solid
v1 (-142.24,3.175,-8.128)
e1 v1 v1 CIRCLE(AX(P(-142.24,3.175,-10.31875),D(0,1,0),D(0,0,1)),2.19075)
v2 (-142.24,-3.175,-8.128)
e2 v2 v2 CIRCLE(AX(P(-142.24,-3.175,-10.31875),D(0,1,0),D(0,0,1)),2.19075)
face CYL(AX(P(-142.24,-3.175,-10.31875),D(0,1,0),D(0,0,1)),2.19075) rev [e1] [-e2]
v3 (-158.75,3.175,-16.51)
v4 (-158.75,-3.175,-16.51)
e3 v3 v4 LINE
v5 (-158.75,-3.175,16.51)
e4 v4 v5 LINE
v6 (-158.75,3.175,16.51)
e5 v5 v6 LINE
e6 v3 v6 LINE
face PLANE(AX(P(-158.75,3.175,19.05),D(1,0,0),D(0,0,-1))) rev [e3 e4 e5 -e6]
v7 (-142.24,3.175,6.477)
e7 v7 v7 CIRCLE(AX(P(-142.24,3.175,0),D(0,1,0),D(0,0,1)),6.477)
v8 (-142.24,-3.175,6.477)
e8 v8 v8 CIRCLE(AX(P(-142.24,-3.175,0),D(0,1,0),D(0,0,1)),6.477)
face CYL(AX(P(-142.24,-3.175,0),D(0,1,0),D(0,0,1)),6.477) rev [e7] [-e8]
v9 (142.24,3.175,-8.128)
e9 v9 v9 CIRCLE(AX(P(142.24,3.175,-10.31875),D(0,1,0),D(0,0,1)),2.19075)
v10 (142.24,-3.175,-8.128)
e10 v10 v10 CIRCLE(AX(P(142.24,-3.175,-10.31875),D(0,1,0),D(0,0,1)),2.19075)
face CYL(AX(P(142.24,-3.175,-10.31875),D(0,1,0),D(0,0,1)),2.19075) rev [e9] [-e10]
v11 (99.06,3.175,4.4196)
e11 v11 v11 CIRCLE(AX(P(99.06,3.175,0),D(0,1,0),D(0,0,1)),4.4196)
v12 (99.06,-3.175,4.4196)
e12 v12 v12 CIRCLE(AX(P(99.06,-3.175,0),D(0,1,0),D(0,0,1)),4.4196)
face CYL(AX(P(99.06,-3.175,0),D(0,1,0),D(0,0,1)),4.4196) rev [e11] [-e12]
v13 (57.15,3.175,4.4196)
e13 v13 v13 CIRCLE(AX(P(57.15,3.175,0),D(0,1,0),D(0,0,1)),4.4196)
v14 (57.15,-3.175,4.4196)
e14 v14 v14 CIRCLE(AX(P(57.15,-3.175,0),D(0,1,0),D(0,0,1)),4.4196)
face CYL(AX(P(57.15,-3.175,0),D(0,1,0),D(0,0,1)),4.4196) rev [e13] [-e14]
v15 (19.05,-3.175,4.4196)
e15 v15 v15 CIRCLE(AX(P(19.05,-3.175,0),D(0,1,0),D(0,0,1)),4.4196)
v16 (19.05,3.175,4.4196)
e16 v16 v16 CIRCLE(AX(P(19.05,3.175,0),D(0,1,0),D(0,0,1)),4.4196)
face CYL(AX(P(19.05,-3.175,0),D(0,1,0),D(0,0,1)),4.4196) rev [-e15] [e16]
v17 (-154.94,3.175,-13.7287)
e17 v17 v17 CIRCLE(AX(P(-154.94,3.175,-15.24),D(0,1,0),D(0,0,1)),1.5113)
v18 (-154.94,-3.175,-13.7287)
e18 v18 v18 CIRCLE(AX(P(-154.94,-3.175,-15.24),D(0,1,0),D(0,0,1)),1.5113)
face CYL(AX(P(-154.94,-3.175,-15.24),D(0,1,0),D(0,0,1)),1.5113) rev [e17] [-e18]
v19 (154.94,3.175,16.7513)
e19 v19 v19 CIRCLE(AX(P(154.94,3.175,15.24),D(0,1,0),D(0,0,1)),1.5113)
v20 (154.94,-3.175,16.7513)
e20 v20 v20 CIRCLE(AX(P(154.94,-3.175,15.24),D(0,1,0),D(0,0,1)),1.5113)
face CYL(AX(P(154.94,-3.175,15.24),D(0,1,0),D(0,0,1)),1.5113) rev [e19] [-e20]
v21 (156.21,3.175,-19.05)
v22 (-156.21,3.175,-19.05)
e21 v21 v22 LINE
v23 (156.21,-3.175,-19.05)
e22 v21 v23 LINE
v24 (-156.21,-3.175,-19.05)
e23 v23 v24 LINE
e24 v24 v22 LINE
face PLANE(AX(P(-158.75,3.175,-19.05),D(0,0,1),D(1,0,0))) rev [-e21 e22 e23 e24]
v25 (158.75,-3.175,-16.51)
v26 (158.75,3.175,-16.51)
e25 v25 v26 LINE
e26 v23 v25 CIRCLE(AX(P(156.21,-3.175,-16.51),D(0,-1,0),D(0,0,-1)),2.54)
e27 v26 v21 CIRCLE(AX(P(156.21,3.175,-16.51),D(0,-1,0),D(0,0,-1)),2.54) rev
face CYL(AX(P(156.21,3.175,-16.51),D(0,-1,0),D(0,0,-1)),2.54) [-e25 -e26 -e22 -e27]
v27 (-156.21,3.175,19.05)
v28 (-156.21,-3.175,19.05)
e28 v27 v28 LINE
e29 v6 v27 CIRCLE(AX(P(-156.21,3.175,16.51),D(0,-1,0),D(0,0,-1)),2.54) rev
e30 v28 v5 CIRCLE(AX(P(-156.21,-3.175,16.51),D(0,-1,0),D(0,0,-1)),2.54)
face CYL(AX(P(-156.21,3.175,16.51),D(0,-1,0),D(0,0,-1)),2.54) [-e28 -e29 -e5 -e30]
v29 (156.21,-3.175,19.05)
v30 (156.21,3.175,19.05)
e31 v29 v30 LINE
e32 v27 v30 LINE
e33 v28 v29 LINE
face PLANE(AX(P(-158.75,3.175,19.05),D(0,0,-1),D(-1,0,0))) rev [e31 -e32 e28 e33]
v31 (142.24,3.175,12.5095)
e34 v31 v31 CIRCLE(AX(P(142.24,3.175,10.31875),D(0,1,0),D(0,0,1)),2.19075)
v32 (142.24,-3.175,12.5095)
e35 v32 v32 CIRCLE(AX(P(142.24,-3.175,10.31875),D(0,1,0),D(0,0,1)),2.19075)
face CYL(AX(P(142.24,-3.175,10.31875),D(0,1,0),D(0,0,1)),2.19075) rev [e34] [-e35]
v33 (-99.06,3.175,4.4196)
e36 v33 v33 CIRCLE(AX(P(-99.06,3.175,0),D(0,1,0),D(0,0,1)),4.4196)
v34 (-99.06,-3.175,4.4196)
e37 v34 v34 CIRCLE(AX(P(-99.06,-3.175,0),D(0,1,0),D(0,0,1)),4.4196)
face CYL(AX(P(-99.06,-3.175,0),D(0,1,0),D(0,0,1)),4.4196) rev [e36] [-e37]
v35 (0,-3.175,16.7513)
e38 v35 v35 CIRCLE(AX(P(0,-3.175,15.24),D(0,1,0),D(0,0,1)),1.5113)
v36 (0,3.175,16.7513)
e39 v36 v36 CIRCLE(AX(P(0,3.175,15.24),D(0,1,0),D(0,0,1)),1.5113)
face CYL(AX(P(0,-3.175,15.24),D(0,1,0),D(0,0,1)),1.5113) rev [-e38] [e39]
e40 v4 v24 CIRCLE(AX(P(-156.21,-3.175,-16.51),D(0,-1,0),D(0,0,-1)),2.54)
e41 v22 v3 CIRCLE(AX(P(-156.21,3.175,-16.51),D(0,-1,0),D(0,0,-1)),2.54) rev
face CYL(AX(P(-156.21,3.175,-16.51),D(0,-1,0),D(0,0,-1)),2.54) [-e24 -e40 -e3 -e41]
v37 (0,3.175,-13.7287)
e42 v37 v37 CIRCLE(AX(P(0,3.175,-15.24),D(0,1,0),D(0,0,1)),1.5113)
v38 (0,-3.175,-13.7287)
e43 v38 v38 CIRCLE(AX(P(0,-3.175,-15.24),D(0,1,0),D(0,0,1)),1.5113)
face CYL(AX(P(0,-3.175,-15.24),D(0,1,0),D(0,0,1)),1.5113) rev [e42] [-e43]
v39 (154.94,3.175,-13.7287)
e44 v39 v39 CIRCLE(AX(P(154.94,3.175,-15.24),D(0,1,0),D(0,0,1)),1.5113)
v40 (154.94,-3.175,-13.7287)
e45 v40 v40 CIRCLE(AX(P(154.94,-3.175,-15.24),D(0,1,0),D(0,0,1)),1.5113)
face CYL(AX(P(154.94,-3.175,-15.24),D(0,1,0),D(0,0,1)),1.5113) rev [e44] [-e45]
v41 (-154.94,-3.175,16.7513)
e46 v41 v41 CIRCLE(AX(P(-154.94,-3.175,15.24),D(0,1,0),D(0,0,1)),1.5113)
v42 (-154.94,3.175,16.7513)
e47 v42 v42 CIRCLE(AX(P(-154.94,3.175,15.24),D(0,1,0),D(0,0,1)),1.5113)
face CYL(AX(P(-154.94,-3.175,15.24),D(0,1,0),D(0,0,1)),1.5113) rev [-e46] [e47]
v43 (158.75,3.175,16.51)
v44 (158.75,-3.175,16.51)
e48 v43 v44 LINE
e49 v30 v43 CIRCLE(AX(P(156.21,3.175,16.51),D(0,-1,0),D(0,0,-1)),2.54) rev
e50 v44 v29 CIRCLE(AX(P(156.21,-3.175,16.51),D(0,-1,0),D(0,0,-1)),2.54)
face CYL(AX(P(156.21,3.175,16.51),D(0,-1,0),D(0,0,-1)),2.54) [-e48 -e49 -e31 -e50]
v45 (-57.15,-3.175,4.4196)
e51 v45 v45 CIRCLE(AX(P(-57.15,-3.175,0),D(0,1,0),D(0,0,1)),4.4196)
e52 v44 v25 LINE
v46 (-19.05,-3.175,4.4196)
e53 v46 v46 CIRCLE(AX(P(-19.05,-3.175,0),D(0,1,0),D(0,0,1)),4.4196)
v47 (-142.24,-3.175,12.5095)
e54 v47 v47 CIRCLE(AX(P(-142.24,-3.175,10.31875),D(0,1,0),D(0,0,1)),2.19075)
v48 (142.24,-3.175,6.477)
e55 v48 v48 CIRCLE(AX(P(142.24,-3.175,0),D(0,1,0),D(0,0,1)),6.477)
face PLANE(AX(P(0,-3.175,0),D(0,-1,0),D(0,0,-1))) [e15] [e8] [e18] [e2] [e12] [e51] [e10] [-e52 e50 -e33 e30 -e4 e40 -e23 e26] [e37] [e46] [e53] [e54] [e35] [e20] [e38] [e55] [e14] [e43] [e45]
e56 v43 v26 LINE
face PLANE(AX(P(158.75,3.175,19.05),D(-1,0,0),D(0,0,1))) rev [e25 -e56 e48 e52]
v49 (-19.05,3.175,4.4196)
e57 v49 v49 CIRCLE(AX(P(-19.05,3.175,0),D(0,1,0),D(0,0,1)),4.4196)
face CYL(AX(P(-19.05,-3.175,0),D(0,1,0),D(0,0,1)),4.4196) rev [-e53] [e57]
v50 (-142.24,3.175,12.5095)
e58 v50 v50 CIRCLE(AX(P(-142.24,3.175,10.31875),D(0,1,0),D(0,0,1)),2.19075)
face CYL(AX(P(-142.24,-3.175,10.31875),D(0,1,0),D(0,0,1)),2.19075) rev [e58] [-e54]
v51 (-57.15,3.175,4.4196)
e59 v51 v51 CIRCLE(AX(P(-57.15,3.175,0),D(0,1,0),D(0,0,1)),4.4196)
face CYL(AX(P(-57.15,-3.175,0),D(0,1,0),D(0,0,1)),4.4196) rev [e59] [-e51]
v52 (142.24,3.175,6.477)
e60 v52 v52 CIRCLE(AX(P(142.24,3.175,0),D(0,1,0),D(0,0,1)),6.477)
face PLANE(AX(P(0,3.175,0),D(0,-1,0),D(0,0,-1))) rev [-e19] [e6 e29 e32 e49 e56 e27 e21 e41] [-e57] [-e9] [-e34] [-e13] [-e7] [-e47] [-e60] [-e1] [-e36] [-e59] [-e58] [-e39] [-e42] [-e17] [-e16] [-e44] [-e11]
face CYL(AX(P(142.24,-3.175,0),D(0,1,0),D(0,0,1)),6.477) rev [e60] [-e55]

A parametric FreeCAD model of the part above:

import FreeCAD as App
import Part
import Sketcher
Q = App.Units.Quantity


def edges_at(feature, points):
    """Names of the edges that pass closest to the given points."""
    edges = feature.Shape.Edges
    near = lambda p: min(range(len(edges)), key=lambda i: edges[i].distToShape(Part.Vertex(*p))[0])
    return sorted({f"Edge{near(p) + 1}" for p in points})


def add_polygon(sketch, points):
    """Adds a closed chain of lines whose ends are joined by coincident constraints."""
    first, n = sketch.GeometryCount, len(points)
    for a, b in zip(points, points[1:] + points[:1]):
        sketch.addGeometry(Part.LineSegment(App.Vector(*a, 0), App.Vector(*b, 0)), False)
    for i in range(n):
        sketch.addConstraint(Sketcher.Constraint("Coincident", first + i, 2, first + (i + 1) % n, 1))

doc = App.newDocument("Part")
body = doc.addObject("PartDesign::Body", "Body")

sketch1 = body.newObject("Sketcher::SketchObject", "Sketch")
sketch1.AttachmentSupport = (doc.getObject("XZ_Plane"), [""])
sketch1.MapMode = "FlatFace"
add_polygon(sketch1, [(-159, -19), (-159, 19), (159, 19), (159, -19)])
sketch1.addConstraint([
    Sketcher.Constraint("Vertical", 0),
    Sketcher.Constraint("Horizontal", 1),
    Sketcher.Constraint("Vertical", 2),
    Sketcher.Constraint("Horizontal", 3),
    Sketcher.Constraint("Symmetric", 0, 2, 2, 2, -1, 1),
    Sketcher.Constraint("DistanceX", 1, 1, 1, 2, Q("12.5 in")),
    Sketcher.Constraint("DistanceY", 0, 1, 0, 2, Q("1.5 in")),
])
pad1 = body.newObject("PartDesign::Pad", "Pad")
pad1.Profile = sketch1
pad1.Length = Q("0.25 in")
pad1.Midplane = True

sketch2 = body.newObject("Sketcher::SketchObject", "Sketch001")
sketch2.AttachmentSupport = (doc.getObject("XZ_Plane"), [""])
sketch2.MapMode = "FlatFace"
sketch2.AttachmentOffset = App.Placement(App.Vector(0, 0, -0.125 * 25.4), App.Rotation())
sketch2.addGeometry([
    Part.Circle(App.Vector(-99.1, 0, 0), App.Vector(0, 0, 1), 4.4),
    Part.Circle(App.Vector(-57.1, 0, 0), App.Vector(0, 0, 1), 4.4),
    Part.Circle(App.Vector(-19.1, 0, 0), App.Vector(0, 0, 1), 4.4),
    Part.Circle(App.Vector(19.1, 0, 0), App.Vector(0, 0, 1), 4.4),
    Part.Circle(App.Vector(57.1, 0, 0), App.Vector(0, 0, 1), 4.4),
    Part.Circle(App.Vector(-142.2, 0, 0), App.Vector(0, 0, 1), 6.5),
    Part.Circle(App.Vector(-142.2, 10.3, 0), App.Vector(0, 0, 1), 2.2),
    Part.Circle(App.Vector(-142.2, -10.3, 0), App.Vector(0, 0, 1), 2.2),
    Part.Circle(App.Vector(142.2, 0, 0), App.Vector(0, 0, 1), 6.5),
    Part.Circle(App.Vector(142.2, 10.3, 0), App.Vector(0, 0, 1), 2.2),
    Part.Circle(App.Vector(142.2, -10.3, 0), App.Vector(0, 0, 1), 2.2),
    Part.Circle(App.Vector(99.1, 0, 0), App.Vector(0, 0, 1), 4.4),
], False)
sketch2.addConstraint([
    Sketcher.Constraint("Equal", 0, 1),
    Sketcher.Constraint("Equal", 1, 2),
    Sketcher.Constraint("Equal", 2, 3),
    Sketcher.Constraint("Equal", 3, 4),
    Sketcher.Constraint("Equal", 6, 7),
    Sketcher.Constraint("Equal", 5, 8),
    Sketcher.Constraint("Equal", 7, 9),
    Sketcher.Constraint("Equal", 9, 10),
    Sketcher.Constraint("Equal", 4, 11),
    Sketcher.Constraint("Symmetric", 2, 3, 3, 3, -1, 1),
    Sketcher.Constraint("Symmetric", 1, 3, 4, 3, -1, 1),
    Sketcher.Constraint("Symmetric", 5, 3, 8, 3, -1, 1),
    Sketcher.Constraint("Symmetric", 7, 3, 9, 3, -1, 1),
    Sketcher.Constraint("Symmetric", 6, 3, 10, 3, -1, 1),
    Sketcher.Constraint("Symmetric", 0, 3, 11, 3, -1, 1),
    Sketcher.Constraint("Symmetric", 6, 3, 9, 3, -2),
    Sketcher.Constraint("PointOnObject", 0, 3, -1),
    Sketcher.Constraint("PointOnObject", 1, 3, -1),
    Sketcher.Constraint("PointOnObject", 2, 3, -1),
    Sketcher.Constraint("PointOnObject", 5, 3, -1),
    Sketcher.Constraint("Vertical", 5, 3, 6, 3),
    Sketcher.Constraint("Diameter", 5, Q("0.51 in")),
    Sketcher.Constraint("Diameter", 0, Q("0.348 in")),
    Sketcher.Constraint("DistanceX", 1, 3, 3, 3, Q("3 in")),
    Sketcher.Constraint("Diameter", 6, Q("0.1725 in")),
    Sketcher.Constraint("DistanceX", 0, 3, -1, 1, Q("3.9 in")),
    Sketcher.Constraint("DistanceX", 5, 3, -1, 1, Q("5.6 in")),
    Sketcher.Constraint("DistanceX", 1, 3, 2, 3, Q("1.5 in")),
    Sketcher.Constraint("DistanceY", -1, 1, 6, 3, Q("0.40625 in")),
])
pocket1 = body.newObject("PartDesign::Pocket", "Pocket")
pocket1.Profile = sketch2
pocket1.Type = "ThroughAll"
pocket1.Reversed = True

sketch3 = body.newObject("Sketcher::SketchObject", "Sketch002")
sketch3.AttachmentSupport = (doc.getObject("XZ_Plane"), [""])
sketch3.MapMode = "FlatFace"
sketch3.AttachmentOffset = App.Placement(App.Vector(0, 0, -0.125 * 25.4), App.Rotation())
sketch3.addGeometry([
    Part.Circle(App.Vector(-154.9, -15.2, 0), App.Vector(0, 0, 1), 1.5),
    Part.Circle(App.Vector(-154.9, 15.2, 0), App.Vector(0, 0, 1), 1.5),
    Part.Circle(App.Vector(154.9, 15.2, 0), App.Vector(0, 0, 1), 1.5),
    Part.Circle(App.Vector(154.9, -15.2, 0), App.Vector(0, 0, 1), 1.5),
    Part.Circle(App.Vector(0, -15.2, 0), App.Vector(0, 0, 1), 1.5),
    Part.Circle(App.Vector(0, 15.2, 0), App.Vector(0, 0, 1), 1.5),
], False)
sketch3.addConstraint([
    Sketcher.Constraint("Equal", 0, 1),
    Sketcher.Constraint("Equal", 1, 2),
    Sketcher.Constraint("Equal", 2, 3),
    Sketcher.Constraint("Equal", 3, 4),
    Sketcher.Constraint("Equal", 4, 5),
    Sketcher.Constraint("Symmetric", 0, 3, 2, 3, -1, 1),
    Sketcher.Constraint("Symmetric", 1, 3, 3, 3, -1, 1),
    Sketcher.Constraint("Symmetric", 4, 3, 5, 3, -1, 1),
    Sketcher.Constraint("Symmetric", 1, 3, 2, 3, -2),
    Sketcher.Constraint("PointOnObject", 4, 3, -2),
    Sketcher.Constraint("Horizontal", 3, 3, 4, 3),
    Sketcher.Constraint("Diameter", 0, Q("0.119 in")),
    Sketcher.Constraint("DistanceX", 0, 3, -1, 1, Q("6.1 in")),
    Sketcher.Constraint("DistanceY", 0, 3, -1, 1, Q("0.6 in")),
])
pocket2 = body.newObject("PartDesign::Pocket", "Pocket001")
pocket2.Profile = sketch3
pocket2.Type = "ThroughAll"
pocket2.Reversed = True
doc.recompute()

fillet = body.newObject("PartDesign::Fillet", "Fillet")
fillet.Base = (pocket2, edges_at(pocket2, [
    (158.75, 0, 19.05),
    (-158.75, 0, 19.05),
    (-158.75, 0, -19.05),
    (158.75, 0, -19.05),
]))
fillet.Radius = Q("0.1 in")

doc.recompute()
